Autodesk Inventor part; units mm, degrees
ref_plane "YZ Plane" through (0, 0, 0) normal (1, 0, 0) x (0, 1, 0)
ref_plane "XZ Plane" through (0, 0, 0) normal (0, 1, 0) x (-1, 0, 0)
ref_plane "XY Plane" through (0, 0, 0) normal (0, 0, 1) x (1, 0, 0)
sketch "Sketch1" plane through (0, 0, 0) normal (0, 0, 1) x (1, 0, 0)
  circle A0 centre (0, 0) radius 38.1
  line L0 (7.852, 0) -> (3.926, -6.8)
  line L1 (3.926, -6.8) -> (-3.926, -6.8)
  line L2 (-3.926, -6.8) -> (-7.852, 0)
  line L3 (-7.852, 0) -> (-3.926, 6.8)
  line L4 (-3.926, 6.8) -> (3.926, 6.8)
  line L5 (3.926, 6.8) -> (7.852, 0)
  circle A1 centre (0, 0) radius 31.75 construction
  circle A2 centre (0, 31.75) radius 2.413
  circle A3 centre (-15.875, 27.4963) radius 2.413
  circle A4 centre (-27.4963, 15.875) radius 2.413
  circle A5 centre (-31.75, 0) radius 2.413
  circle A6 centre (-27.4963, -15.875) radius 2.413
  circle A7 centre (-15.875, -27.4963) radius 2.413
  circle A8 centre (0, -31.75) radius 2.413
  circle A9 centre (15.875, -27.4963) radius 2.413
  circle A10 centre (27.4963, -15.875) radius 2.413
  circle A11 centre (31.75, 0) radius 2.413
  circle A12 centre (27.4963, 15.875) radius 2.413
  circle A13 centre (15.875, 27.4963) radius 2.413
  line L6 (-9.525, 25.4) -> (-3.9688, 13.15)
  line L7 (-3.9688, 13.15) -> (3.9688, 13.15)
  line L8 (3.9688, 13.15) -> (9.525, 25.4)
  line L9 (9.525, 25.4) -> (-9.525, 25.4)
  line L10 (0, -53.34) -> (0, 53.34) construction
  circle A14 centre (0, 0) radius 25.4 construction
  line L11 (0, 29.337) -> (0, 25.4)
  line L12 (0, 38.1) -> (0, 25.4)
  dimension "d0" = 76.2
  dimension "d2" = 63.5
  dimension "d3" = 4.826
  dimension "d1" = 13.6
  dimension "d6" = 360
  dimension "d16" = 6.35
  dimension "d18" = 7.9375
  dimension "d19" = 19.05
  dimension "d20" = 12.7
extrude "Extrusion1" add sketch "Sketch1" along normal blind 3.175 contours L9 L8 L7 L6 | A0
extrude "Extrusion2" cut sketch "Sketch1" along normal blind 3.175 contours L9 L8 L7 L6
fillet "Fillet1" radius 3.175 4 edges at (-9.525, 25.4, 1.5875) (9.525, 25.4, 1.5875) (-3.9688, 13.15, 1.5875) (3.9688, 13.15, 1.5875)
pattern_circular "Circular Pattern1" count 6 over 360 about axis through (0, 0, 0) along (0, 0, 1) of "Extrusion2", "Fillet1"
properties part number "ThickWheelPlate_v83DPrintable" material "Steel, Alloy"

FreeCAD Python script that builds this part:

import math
import FreeCAD as App
import Part
import Sketcher
Q = App.Units.Quantity


def edges_at(feature, points):
    """Names of the edges that pass closest to the given points."""
    edges = feature.Shape.Edges
    near = lambda p: min(range(len(edges)), key=lambda i: edges[i].distToShape(Part.Vertex(*p))[0])
    return sorted({f"Edge{near(p) + 1}" for p in points})


def add_polygon(sketch, points):
    """Adds a closed chain of lines whose ends are joined by coincident constraints."""
    first, n = sketch.GeometryCount, len(points)
    for a, b in zip(points, points[1:] + points[:1]):
        sketch.addGeometry(Part.LineSegment(App.Vector(*a, 0), App.Vector(*b, 0)), False)
    for i in range(n):
        sketch.addConstraint(Sketcher.Constraint("Coincident", first + i, 2, first + (i + 1) % n, 1))

doc = App.newDocument("Part")
params = doc.addObject("Spreadsheet::Sheet", "Params")
for row, (alias, value) in enumerate([
    ("sketch1_diameter", "3 in"),
    ("sketch1_diameter2", "0.19 in"),
    ("pad1_length", "0.125 in"),
    ("sketch2_width", "0.75 in"),
    ("sketch2_width2", "0.3125 in"),
    ("pocket1_length", "0.125 in"),
    ("fillet_radius", "0.125 in"),
], start=1):
    params.set(f"A{row}", alias)
    params.set(f"B{row}", "=" + value)
    params.setAlias(f"B{row}", alias)

body = doc.addObject("PartDesign::Body", "Body")

sketch1 = body.newObject("Sketcher::SketchObject", "Sketch")
sketch1.AttachmentSupport = (doc.getObject("XY_Plane"), [""])
sketch1.MapMode = "FlatFace"
sketch1.addGeometry(Part.Circle(App.Vector(0, 0, 0), App.Vector(0, 0, 1), 38.1), False)
sketch1.addGeometry(Part.Circle(App.Vector(-15.9, -27.5, 0), App.Vector(0, 0, 1), 2.4), False)
sketch1.addGeometry(Part.Circle(App.Vector(-27.5, -15.9, 0), App.Vector(0, 0, 1), 2.4), False)
sketch1.addGeometry(Part.Circle(App.Vector(0, -31.8, 0), App.Vector(0, 0, 1), 2.4), False)
sketch1.addGeometry(Part.Circle(App.Vector(15.9, -27.5, 0), App.Vector(0, 0, 1), 2.4), False)
sketch1.addGeometry(Part.Circle(App.Vector(27.5, -15.9, 0), App.Vector(0, 0, 1), 2.4), False)
sketch1.addGeometry(Part.Circle(App.Vector(-31.8, 0, 0), App.Vector(0, 0, 1), 2.4), False)
sketch1.addGeometry(Part.Circle(App.Vector(-27.5, 15.9, 0), App.Vector(0, 0, 1), 2.4), False)
sketch1.addGeometry(Part.Circle(App.Vector(-15.9, 27.5, 0), App.Vector(0, 0, 1), 2.4), False)
add_polygon(sketch1, [(3.9, 6.8), (7.9, 0), (3.9, -6.8), (-3.9, -6.8), (-7.9, 0), (-3.9, 6.8)])
sketch1.addGeometry(Part.Circle(App.Vector(31.8, 0, 0), App.Vector(0, 0, 1), 2.4), False)
sketch1.addGeometry(Part.Circle(App.Vector(27.5, 15.9, 0), App.Vector(0, 0, 1), 2.4), False)
sketch1.addGeometry(Part.ArcOfCircle(Part.Circle(App.Vector(0, 31.8, 0), App.Vector(0, 0, 1), 2.4), math.radians(90), math.radians(270)), False)
sketch1.addGeometry(Part.ArcOfCircle(Part.Circle(App.Vector(0, 31.8, 0), App.Vector(0, 0, 1), 2.4), math.radians(-90), math.radians(90)), False)
sketch1.addGeometry(Part.Circle(App.Vector(15.9, 27.5, 0), App.Vector(0, 0, 1), 2.4), False)
sketch1.addConstraint([
    Sketcher.Constraint("Tangent", 17, 1, 18, 2),
    Sketcher.Constraint("Coincident", 18, 1, 17, 2),
    Sketcher.Constraint("Horizontal", 11),
    Sketcher.Constraint("Horizontal", 14),
    Sketcher.Constraint("Coincident", 0, 3, -1, 1),
    Sketcher.Constraint("Equal", 1, 2),
    Sketcher.Constraint("Equal", 2, 3),
    Sketcher.Constraint("Equal", 3, 4),
    Sketcher.Constraint("Equal", 4, 5),
    Sketcher.Constraint("Equal", 5, 6),
    Sketcher.Constraint("Equal", 6, 7),
    Sketcher.Constraint("Equal", 7, 8),
    Sketcher.Constraint("Equal", 8, 15),
    Sketcher.Constraint("Equal", 15, 16),
    Sketcher.Constraint("Equal", 16, 17),
    Sketcher.Constraint("Equal", 18, 19),
    Sketcher.Constraint("Symmetric", 5, 3, 7, 3, -1, 1),
    Sketcher.Constraint("Symmetric", 4, 3, 8, 3, -1, 1),
    Sketcher.Constraint("Symmetric", 6, 3, 15, 3, -1, 1),
    Sketcher.Constraint("Symmetric", 2, 3, 16, 3, -1, 1),
    Sketcher.Constraint("Symmetric", 3, 3, 17, 3, -1, 1),
    Sketcher.Constraint("Symmetric", 1, 3, 19, 3, -1, 1),
    Sketcher.Constraint("Symmetric", 9, 2, 12, 2, -1, 1),
    Sketcher.Constraint("Symmetric", 10, 2, 13, 2, -1, 1),
    Sketcher.Constraint("Symmetric", 1, 3, 4, 3, -2),
    Sketcher.Constraint("Symmetric", 2, 3, 5, 3, -2),
    Sketcher.Constraint("PointOnObject", 3, 3, -2),
    Sketcher.Constraint("PointOnObject", 6, 3, -1),
    Sketcher.Constraint("PointOnObject", 9, 2, -1),
    Sketcher.Constraint("PointOnObject", 17, 1, -2),
    Sketcher.Constraint("PointOnObject", 18, 1, -2),
    Sketcher.Constraint("Parallel", 9, 12),
    Sketcher.Constraint("Vertical", 11, 2, 13, 2),
    Sketcher.Constraint("Diameter", 0, Q("3 in")),
    Sketcher.Constraint("Diameter", 1, Q("0.19 in")),
    Sketcher.Constraint("Angle", 9, Q("-60 deg")),
    Sketcher.Constraint("DistanceY", 3, 3, -1, 1, Q("1.25 in")),
    Sketcher.Constraint("DistanceX", 6, 3, -1, 1, Q("1.25 in")),
    Sketcher.Constraint("DistanceX", 1, 3, 4, 3, Q("1.25 in")),
    Sketcher.Constraint("DistanceY", 2, 3, 7, 3, Q("1.25 in")),
    Sketcher.Constraint("DistanceY", 11, 2, 13, 2, Q("13.6 mm")),
    Sketcher.Constraint("DistanceX", 11, 2, 11, 1, Q("7.852 mm")),
    Sketcher.Constraint("DistanceX", 9, 2, 5, 3, Q("0.7734 in")),
    Sketcher.Constraint("DistanceY", 1, 3, -1, 1, Q("27.4963 mm")),
])
sketch1.setExpression("Constraints[39]", "Params.sketch1_diameter")
sketch1.setExpression("Constraints[40]", "Params.sketch1_diameter2")
pad1 = body.newObject("PartDesign::Pad", "Pad")
pad1.Profile = sketch1
pad1.setExpression("Length", "Params.pad1_length")

sketch2 = body.newObject("Sketcher::SketchObject", "Sketch001")
sketch2.AttachmentSupport = (doc.getObject("XY_Plane"), [""])
sketch2.MapMode = "FlatFace"
add_polygon(sketch2, [(10, 25), (-10, 25), (-4, 13), (4, 13)])
sketch2.addConstraint([
    Sketcher.Constraint("Horizontal", 0),
    Sketcher.Constraint("Horizontal", 2),
    Sketcher.Constraint("Equal", 1, 3),
    Sketcher.Constraint("DistanceX", 0, 2, 0, 1, Q("0.75 in")),
    Sketcher.Constraint("DistanceX", 2, 1, 2, 2, Q("0.3125 in")),
    Sketcher.Constraint("DistanceY", -1, 1, 0, 2, Q("1 in")),
    Sketcher.Constraint("DistanceX", 0, 2, -1, 1, Q("0.375 in")),
    Sketcher.Constraint("Distance", 1, Q("13.4512 mm")),
])
sketch2.setExpression("Constraints[7]", "Params.sketch2_width")
sketch2.setExpression("Constraints[8]", "Params.sketch2_width2")
pocket1 = body.newObject("PartDesign::Pocket", "Pocket")
pocket1.Profile = sketch2
pocket1.setExpression("Length", "Params.pocket1_length")
pocket1.Reversed = True
doc.recompute()

fillet = body.newObject("PartDesign::Fillet", "Fillet")
fillet.Base = (pocket1, edges_at(pocket1, [
    (-9.525, 25.4, 1.587),
    (9.525, 25.4, 1.587),
    (-3.969, 13.15, 1.587),
    (3.969, 13.15, 1.587),
]))
fillet.setExpression("Radius", "Params.fillet_radius")
doc.recompute()

polarpattern = body.newObject("PartDesign::PolarPattern", "PolarPattern")
polarpattern.Originals = [pocket1, fillet]
polarpattern.Axis = (doc.getObject("Z_Axis"), [""])
polarpattern.Angle = 360
polarpattern.Occurrences = 6
body.Tip = polarpattern

doc.recompute()
